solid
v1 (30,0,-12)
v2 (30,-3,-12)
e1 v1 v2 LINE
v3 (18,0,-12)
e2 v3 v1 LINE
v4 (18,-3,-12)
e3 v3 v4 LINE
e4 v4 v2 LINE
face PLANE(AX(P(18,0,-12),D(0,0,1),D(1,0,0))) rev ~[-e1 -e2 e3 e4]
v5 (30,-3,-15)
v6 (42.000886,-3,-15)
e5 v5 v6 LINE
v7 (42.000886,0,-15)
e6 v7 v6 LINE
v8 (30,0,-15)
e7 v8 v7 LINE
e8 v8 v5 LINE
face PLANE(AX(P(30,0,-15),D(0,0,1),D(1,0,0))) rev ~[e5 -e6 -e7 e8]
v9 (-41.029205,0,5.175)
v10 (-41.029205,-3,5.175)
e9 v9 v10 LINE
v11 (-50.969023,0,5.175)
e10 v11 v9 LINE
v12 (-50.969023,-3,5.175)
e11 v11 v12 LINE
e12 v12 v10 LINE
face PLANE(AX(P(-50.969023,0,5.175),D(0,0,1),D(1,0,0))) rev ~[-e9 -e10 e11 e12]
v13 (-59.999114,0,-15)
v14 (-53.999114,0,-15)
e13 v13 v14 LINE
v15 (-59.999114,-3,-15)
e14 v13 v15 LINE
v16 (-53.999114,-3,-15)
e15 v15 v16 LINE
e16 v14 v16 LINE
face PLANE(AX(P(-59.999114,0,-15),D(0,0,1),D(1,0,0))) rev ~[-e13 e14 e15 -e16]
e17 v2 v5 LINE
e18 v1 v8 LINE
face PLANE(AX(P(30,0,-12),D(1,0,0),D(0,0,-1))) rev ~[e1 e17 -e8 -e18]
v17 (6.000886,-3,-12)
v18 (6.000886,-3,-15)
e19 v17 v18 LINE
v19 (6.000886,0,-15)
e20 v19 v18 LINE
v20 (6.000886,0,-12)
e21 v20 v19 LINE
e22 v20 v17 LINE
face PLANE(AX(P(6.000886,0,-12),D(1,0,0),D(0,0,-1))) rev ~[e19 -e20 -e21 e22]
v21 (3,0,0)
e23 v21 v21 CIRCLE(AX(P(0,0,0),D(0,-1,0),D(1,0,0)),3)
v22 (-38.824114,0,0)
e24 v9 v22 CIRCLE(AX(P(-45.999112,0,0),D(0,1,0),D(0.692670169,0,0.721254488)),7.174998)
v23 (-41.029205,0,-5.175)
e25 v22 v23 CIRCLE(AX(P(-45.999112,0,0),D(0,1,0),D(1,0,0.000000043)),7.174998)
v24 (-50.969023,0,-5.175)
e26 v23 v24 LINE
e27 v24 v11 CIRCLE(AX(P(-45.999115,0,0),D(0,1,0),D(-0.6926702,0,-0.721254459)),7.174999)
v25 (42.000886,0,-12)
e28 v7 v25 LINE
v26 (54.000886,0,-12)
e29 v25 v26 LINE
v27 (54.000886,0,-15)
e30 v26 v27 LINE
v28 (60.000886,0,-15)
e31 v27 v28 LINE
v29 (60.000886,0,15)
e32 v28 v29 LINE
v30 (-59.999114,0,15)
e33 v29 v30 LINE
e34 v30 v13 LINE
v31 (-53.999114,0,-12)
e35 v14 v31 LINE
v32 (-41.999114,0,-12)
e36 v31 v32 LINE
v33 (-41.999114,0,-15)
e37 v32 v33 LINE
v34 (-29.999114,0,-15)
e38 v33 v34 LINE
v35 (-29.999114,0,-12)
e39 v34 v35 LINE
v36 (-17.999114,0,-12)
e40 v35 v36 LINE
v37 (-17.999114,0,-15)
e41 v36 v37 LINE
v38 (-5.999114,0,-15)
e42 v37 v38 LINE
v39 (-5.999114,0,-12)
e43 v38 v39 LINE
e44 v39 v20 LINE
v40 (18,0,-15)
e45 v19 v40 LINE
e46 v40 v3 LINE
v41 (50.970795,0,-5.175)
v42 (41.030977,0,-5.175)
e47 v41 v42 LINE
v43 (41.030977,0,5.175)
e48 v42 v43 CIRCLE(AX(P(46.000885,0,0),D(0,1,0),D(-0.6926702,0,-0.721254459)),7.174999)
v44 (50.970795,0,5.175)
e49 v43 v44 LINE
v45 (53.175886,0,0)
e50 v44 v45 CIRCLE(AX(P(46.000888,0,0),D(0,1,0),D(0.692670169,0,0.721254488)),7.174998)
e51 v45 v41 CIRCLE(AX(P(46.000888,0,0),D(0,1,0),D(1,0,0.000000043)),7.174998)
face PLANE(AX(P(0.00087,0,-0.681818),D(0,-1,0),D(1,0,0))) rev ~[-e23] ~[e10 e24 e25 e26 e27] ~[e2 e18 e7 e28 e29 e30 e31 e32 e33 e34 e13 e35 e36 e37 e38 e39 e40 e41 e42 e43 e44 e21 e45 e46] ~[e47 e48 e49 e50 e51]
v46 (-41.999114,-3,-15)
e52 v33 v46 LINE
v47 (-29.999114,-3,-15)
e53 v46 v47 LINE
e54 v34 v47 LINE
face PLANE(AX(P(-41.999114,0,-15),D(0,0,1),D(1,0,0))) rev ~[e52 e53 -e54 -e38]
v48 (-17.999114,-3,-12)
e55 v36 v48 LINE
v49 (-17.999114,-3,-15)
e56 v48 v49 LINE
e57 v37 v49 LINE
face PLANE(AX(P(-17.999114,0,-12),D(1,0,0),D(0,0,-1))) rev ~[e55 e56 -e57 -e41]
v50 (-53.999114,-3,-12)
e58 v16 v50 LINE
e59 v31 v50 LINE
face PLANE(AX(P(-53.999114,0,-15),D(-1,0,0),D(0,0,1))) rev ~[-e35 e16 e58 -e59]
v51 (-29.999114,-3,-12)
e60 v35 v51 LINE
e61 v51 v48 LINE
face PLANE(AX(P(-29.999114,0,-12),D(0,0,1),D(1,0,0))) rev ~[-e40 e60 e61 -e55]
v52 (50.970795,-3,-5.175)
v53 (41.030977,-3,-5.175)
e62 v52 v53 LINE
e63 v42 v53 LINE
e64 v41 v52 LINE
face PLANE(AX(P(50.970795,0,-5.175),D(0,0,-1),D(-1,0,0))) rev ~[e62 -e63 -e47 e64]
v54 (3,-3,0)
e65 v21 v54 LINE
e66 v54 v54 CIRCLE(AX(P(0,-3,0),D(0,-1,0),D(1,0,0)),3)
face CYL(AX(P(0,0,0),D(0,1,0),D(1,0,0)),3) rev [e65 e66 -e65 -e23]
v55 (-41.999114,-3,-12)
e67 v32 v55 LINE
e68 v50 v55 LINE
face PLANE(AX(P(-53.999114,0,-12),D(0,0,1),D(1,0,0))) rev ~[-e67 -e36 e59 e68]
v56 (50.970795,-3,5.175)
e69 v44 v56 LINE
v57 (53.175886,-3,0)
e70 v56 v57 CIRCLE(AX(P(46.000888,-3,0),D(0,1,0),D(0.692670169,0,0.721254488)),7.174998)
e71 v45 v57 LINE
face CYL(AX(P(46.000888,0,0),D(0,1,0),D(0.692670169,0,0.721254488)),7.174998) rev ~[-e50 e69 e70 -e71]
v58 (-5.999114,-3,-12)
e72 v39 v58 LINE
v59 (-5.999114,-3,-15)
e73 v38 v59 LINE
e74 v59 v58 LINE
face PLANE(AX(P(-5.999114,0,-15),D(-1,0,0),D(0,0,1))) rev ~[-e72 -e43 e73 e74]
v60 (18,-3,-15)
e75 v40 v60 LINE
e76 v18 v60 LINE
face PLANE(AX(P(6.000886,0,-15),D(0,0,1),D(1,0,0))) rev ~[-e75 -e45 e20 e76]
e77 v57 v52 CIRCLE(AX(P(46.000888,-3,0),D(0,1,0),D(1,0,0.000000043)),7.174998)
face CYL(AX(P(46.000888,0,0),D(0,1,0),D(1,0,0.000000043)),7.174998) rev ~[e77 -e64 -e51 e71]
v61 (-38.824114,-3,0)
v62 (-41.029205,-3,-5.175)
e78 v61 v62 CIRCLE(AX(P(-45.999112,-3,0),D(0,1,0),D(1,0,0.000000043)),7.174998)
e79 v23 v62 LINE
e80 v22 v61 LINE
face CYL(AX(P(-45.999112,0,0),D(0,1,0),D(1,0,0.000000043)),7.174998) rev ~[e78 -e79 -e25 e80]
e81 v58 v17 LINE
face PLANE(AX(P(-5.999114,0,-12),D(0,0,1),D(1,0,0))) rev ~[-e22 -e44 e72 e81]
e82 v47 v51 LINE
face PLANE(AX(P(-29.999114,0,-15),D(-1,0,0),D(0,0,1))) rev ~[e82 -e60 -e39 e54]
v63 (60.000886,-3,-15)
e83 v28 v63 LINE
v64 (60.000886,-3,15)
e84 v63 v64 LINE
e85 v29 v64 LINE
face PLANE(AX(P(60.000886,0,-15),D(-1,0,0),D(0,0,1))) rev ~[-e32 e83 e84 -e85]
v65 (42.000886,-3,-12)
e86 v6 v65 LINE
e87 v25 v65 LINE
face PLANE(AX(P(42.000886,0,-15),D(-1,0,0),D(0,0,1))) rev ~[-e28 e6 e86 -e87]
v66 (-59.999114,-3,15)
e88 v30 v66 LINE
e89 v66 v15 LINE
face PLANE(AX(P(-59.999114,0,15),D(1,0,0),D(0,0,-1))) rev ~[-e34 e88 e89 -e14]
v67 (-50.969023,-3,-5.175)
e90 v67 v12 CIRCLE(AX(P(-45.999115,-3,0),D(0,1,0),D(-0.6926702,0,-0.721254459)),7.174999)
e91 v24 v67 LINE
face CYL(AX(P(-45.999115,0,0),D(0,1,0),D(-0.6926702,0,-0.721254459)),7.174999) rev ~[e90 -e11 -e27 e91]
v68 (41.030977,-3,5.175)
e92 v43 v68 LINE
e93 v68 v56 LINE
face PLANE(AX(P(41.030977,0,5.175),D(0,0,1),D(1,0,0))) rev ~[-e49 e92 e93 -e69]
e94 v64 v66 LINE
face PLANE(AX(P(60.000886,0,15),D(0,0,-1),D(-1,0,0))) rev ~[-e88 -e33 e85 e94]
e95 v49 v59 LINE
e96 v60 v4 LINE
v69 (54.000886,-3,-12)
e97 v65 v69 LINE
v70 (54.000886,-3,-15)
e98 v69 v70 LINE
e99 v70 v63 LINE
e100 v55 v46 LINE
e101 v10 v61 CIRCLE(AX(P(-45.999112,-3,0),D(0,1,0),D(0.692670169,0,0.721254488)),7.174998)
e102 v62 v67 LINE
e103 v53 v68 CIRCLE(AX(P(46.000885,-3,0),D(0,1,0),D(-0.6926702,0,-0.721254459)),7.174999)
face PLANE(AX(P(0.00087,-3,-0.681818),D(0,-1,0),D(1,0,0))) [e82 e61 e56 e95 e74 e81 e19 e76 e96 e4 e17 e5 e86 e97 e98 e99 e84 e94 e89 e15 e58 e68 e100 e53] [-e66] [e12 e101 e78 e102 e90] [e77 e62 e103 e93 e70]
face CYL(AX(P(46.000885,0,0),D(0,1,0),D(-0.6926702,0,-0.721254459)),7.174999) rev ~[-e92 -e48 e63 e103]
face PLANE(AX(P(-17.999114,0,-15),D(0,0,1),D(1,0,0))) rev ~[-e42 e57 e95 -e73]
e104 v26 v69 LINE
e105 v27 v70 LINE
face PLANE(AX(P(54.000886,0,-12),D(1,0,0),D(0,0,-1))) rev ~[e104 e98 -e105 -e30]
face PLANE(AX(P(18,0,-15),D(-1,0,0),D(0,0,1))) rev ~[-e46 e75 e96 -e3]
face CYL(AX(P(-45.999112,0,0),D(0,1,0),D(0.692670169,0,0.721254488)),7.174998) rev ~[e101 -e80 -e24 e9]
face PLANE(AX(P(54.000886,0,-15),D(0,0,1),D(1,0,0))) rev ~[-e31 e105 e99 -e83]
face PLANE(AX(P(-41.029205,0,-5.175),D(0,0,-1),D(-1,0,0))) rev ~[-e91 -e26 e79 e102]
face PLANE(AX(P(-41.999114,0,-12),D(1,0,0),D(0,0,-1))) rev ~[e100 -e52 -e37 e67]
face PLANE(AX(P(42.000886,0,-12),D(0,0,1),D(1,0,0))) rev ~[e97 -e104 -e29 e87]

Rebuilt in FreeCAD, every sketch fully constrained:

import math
import FreeCAD as App
import Part
import Sketcher

V = App.Vector

doc = App.newDocument("Part")
body = doc.addObject("PartDesign::Body", "Body")

# Sketch on XZ plane
sketch1 = body.newObject("Sketcher::SketchObject", "Sketch")
sketch1.AttachmentSupport = (doc.getObject("XZ_Plane"), [""])
sketch1.MapMode = "FlatFace"
sketch1.addGeometry(Part.LineSegment(V(-6, -12, 0), V(6, -12, 0)), False)
sketch1.addGeometry(Part.LineSegment(V(6, -12, 0), V(6, -15, 0)), False)
sketch1.addGeometry(Part.LineSegment(V(6, -15, 0), V(18, -15, 0)), False)
sketch1.addGeometry(Part.LineSegment(V(18, -15, 0), V(18, -12, 0)), False)
sketch1.addGeometry(Part.LineSegment(V(18, -12, 0), V(30, -12, 0)), False)
sketch1.addGeometry(Part.LineSegment(V(30, -12, 0), V(30, -15, 0)), False)
sketch1.addGeometry(Part.LineSegment(V(30, -15, 0), V(42, -15, 0)), False)
sketch1.addGeometry(Part.LineSegment(V(42, -15, 0), V(42, -12, 0)), False)
sketch1.addGeometry(Part.LineSegment(V(42, -12, 0), V(54, -12, 0)), False)
sketch1.addGeometry(Part.LineSegment(V(54, -12, 0), V(54, -15, 0)), False)
sketch1.addGeometry(Part.LineSegment(V(54, -15, 0), V(60, -15, 0)), False)
sketch1.addGeometry(Part.LineSegment(V(60, -15, 0), V(60, 15, 0)), False)
sketch1.addGeometry(Part.LineSegment(V(60, 15, 0), V(-60, 15, 0)), False)
sketch1.addGeometry(Part.LineSegment(V(-60, 15, 0), V(-60, -15, 0)), False)
sketch1.addGeometry(Part.LineSegment(V(-60, -15, 0), V(-54, -15, 0)), False)
sketch1.addGeometry(Part.LineSegment(V(-54, -15, 0), V(-54, -12, 0)), False)
sketch1.addGeometry(Part.LineSegment(V(-54, -12, 0), V(-42, -12, 0)), False)
sketch1.addGeometry(Part.LineSegment(V(-42, -12, 0), V(-42, -15, 0)), False)
sketch1.addGeometry(Part.LineSegment(V(-42, -15, 0), V(-30, -15, 0)), False)
sketch1.addGeometry(Part.LineSegment(V(-30, -15, 0), V(-30, -12, 0)), False)
sketch1.addGeometry(Part.LineSegment(V(-30, -12, 0), V(-18, -12, 0)), False)
sketch1.addGeometry(Part.LineSegment(V(-18, -12, 0), V(-18, -15, 0)), False)
sketch1.addGeometry(Part.LineSegment(V(-18, -15, 0), V(-6, -15, 0)), False)
sketch1.addGeometry(Part.LineSegment(V(-6, -15, 0), V(-6, -12, 0)), False)
sketch1.addGeometry(Part.ArcOfCircle(Part.Circle(V(-46, 0, 0), V(0, 0, 1), 7.2), math.radians(0), math.radians(46)), False)
sketch1.addGeometry(Part.ArcOfCircle(Part.Circle(V(-46, 0, 0), V(0, 0, 1), 7.2), math.radians(-46), math.radians(0)), False)
sketch1.addGeometry(Part.LineSegment(V(-41, -5.2, 0), V(-51, -5.2, 0)), False)
sketch1.addGeometry(Part.ArcOfCircle(Part.Circle(V(-46, 0, 0), V(0, 0, 1), 7.2), math.radians(134), math.radians(226)), False)
sketch1.addGeometry(Part.LineSegment(V(-51, 5.2, 0), V(-41, 5.2, 0)), False)
sketch1.addGeometry(Part.Circle(V(0, 0, 0), V(0, 0, 1), 3), False)
sketch1.addGeometry(Part.ArcOfCircle(Part.Circle(V(46, 0, 0), V(0, 0, 1), 7.2), math.radians(134), math.radians(226)), False)
sketch1.addGeometry(Part.LineSegment(V(41, 5.2, 0), V(51, 5.2, 0)), False)
sketch1.addGeometry(Part.ArcOfCircle(Part.Circle(V(46, 0, 0), V(0, 0, 1), 7.2), math.radians(0), math.radians(46)), False)
sketch1.addGeometry(Part.ArcOfCircle(Part.Circle(V(46, 0, 0), V(0, 0, 1), 7.2), math.radians(-46), math.radians(0)), False)
sketch1.addGeometry(Part.LineSegment(V(51, -5.2, 0), V(41, -5.2, 0)), False)
sketch1.addConstraint(Sketcher.Constraint("Coincident", 0, 2, 1, 1))
sketch1.addConstraint(Sketcher.Constraint("Coincident", 1, 2, 2, 1))
sketch1.addConstraint(Sketcher.Constraint("Coincident", 2, 2, 3, 1))
sketch1.addConstraint(Sketcher.Constraint("Coincident", 3, 2, 4, 1))
sketch1.addConstraint(Sketcher.Constraint("Coincident", 4, 2, 5, 1))
sketch1.addConstraint(Sketcher.Constraint("Coincident", 5, 2, 6, 1))
sketch1.addConstraint(Sketcher.Constraint("Coincident", 6, 2, 7, 1))
sketch1.addConstraint(Sketcher.Constraint("Coincident", 7, 2, 8, 1))
sketch1.addConstraint(Sketcher.Constraint("Coincident", 8, 2, 9, 1))
sketch1.addConstraint(Sketcher.Constraint("Coincident", 9, 2, 10, 1))
sketch1.addConstraint(Sketcher.Constraint("Coincident", 10, 2, 11, 1))
sketch1.addConstraint(Sketcher.Constraint("Coincident", 11, 2, 12, 1))
sketch1.addConstraint(Sketcher.Constraint("Coincident", 12, 2, 13, 1))
sketch1.addConstraint(Sketcher.Constraint("Coincident", 13, 2, 14, 1))
sketch1.addConstraint(Sketcher.Constraint("Coincident", 14, 2, 15, 1))
sketch1.addConstraint(Sketcher.Constraint("Coincident", 15, 2, 16, 1))
sketch1.addConstraint(Sketcher.Constraint("Coincident", 16, 2, 17, 1))
sketch1.addConstraint(Sketcher.Constraint("Coincident", 17, 2, 18, 1))
sketch1.addConstraint(Sketcher.Constraint("Coincident", 18, 2, 19, 1))
sketch1.addConstraint(Sketcher.Constraint("Coincident", 19, 2, 20, 1))
sketch1.addConstraint(Sketcher.Constraint("Coincident", 20, 2, 21, 1))
sketch1.addConstraint(Sketcher.Constraint("Coincident", 21, 2, 22, 1))
sketch1.addConstraint(Sketcher.Constraint("Coincident", 22, 2, 23, 1))
sketch1.addConstraint(Sketcher.Constraint("Coincident", 23, 2, 0, 1))
sketch1.addConstraint(Sketcher.Constraint("Tangent", 24, 1, 25, 2))
sketch1.addConstraint(Sketcher.Constraint("Coincident", 25, 1, 26, 1))
sketch1.addConstraint(Sketcher.Constraint("Coincident", 26, 2, 27, 2))
sketch1.addConstraint(Sketcher.Constraint("Coincident", 27, 1, 28, 1))
sketch1.addConstraint(Sketcher.Constraint("Coincident", 28, 2, 24, 2))
sketch1.addConstraint(Sketcher.Constraint("Coincident", 30, 1, 31, 1))
sketch1.addConstraint(Sketcher.Constraint("Coincident", 31, 2, 32, 2))
sketch1.addConstraint(Sketcher.Constraint("Tangent", 32, 1, 33, 2))
sketch1.addConstraint(Sketcher.Constraint("Coincident", 33, 1, 34, 1))
sketch1.addConstraint(Sketcher.Constraint("Coincident", 34, 2, 30, 2))
sketch1.addConstraint(Sketcher.Constraint("Horizontal", 0))
sketch1.addConstraint(Sketcher.Constraint("Vertical", 1))
sketch1.addConstraint(Sketcher.Constraint("Horizontal", 2))
sketch1.addConstraint(Sketcher.Constraint("Vertical", 3))
sketch1.addConstraint(Sketcher.Constraint("Horizontal", 4))
sketch1.addConstraint(Sketcher.Constraint("Vertical", 5))
sketch1.addConstraint(Sketcher.Constraint("Horizontal", 6))
sketch1.addConstraint(Sketcher.Constraint("Vertical", 7))
sketch1.addConstraint(Sketcher.Constraint("Horizontal", 8))
sketch1.addConstraint(Sketcher.Constraint("Vertical", 9))
sketch1.addConstraint(Sketcher.Constraint("Horizontal", 10))
sketch1.addConstraint(Sketcher.Constraint("Vertical", 11))
sketch1.addConstraint(Sketcher.Constraint("Horizontal", 12))
sketch1.addConstraint(Sketcher.Constraint("Vertical", 13))
sketch1.addConstraint(Sketcher.Constraint("Horizontal", 14))
sketch1.addConstraint(Sketcher.Constraint("Vertical", 15))
sketch1.addConstraint(Sketcher.Constraint("Horizontal", 16))
sketch1.addConstraint(Sketcher.Constraint("Vertical", 17))
sketch1.addConstraint(Sketcher.Constraint("Horizontal", 18))
sketch1.addConstraint(Sketcher.Constraint("Vertical", 19))
sketch1.addConstraint(Sketcher.Constraint("Horizontal", 20))
sketch1.addConstraint(Sketcher.Constraint("Vertical", 21))
sketch1.addConstraint(Sketcher.Constraint("Horizontal", 22))
sketch1.addConstraint(Sketcher.Constraint("Vertical", 23))
sketch1.addConstraint(Sketcher.Constraint("Horizontal", 26))
sketch1.addConstraint(Sketcher.Constraint("Horizontal", 28))
sketch1.addConstraint(Sketcher.Constraint("Horizontal", 31))
sketch1.addConstraint(Sketcher.Constraint("Horizontal", 34))
sketch1.addConstraint(Sketcher.Constraint("Coincident", 29, 3, -1, 1))
sketch1.addConstraint(Sketcher.Constraint("Coincident", 27, 3, 24, 3))
sketch1.addConstraint(Sketcher.Constraint("Coincident", 32, 3, 30, 3))
sketch1.addConstraint(Sketcher.Constraint("Equal", 24, 25))
sketch1.addConstraint(Sketcher.Constraint("Equal", 25, 27))
sketch1.addConstraint(Sketcher.Constraint("Equal", 27, 30))
sketch1.addConstraint(Sketcher.Constraint("Equal", 30, 32))
sketch1.addConstraint(Sketcher.Constraint("Equal", 32, 33))
sketch1.addConstraint(Sketcher.Constraint("Symmetric", 26, 2, 27, 1, -1))
sketch1.addConstraint(Sketcher.Constraint("Symmetric", 31, 2, 33, 1, -1))
sketch1.addConstraint(Sketcher.Constraint("PointOnObject", 24, 1, -1))
sketch1.addConstraint(Sketcher.Constraint("PointOnObject", 32, 1, -1))
sketch1.addConstraint(Sketcher.Constraint("Horizontal", 0, 2, 3, 2))
sketch1.addConstraint(Sketcher.Constraint("Horizontal", 2, 2, 5, 2))
sketch1.addConstraint(Sketcher.Constraint("Horizontal", 4, 2, 7, 2))
sketch1.addConstraint(Sketcher.Constraint("Horizontal", 6, 2, 9, 2))
sketch1.addConstraint(Sketcher.Constraint("Horizontal", 10, 2, 13, 2))
sketch1.addConstraint(Sketcher.Constraint("Horizontal", 8, 2, 15, 2))
sketch1.addConstraint(Sketcher.Constraint("Horizontal", 14, 2, 17, 2))
sketch1.addConstraint(Sketcher.Constraint("Horizontal", 16, 2, 19, 2))
sketch1.addConstraint(Sketcher.Constraint("Horizontal", 18, 2, 21, 2))
sketch1.addConstraint(Sketcher.Constraint("Horizontal", 28, 2, 30, 1))
sketch1.addConstraint(Sketcher.Constraint("Equal", 0, 4))
sketch1.addConstraint(Sketcher.Constraint("Equal", 4, 8))
sketch1.addConstraint(Sketcher.Constraint("Equal", 10, 14))
sketch1.addConstraint(Sketcher.Constraint("Equal", 8, 16))
sketch1.addConstraint(Sketcher.Constraint("Equal", 16, 18))
sketch1.addConstraint(Sketcher.Constraint("Equal", 18, 20))
sketch1.addConstraint(Sketcher.Constraint("Equal", 20, 22))
sketch1.addConstraint(Sketcher.Constraint("Diameter", 29, 6.0))
sketch1.addConstraint(Sketcher.Constraint("DistanceX", 0, 1, 0, 2, 12.0))
sketch1.addConstraint(Sketcher.Constraint("DistanceX", 10, 1, 10, 2, 6.0))
sketch1.addConstraint(Sketcher.Constraint("DistanceX", 12, 2, 12, 1, 120.0))
sketch1.addConstraint(Sketcher.Constraint("DistanceY", 1, 2, 1, 1, 3.0))
sketch1.addConstraint(Sketcher.Constraint("DistanceY", 11, 1, 11, 2, 30.0))
sketch1.addConstraint(Sketcher.Constraint("DistanceY", 0, 2, -1, 1, 12.0))
sketch1.addConstraint(Sketcher.Constraint("DistanceX", -1, 1, 2, 2, 18.0))
sketch1.addConstraint(Sketcher.Constraint("Radius", 24, 7.174998))
sketch1.addConstraint(Sketcher.Constraint("DistanceX", 27, 3, 30, 3, 92.0))
sketch1.addConstraint(Sketcher.Constraint("DistanceX", 0, 2, 30, 3, 39.999999))
sketch1.addConstraint(Sketcher.Constraint("DistanceY", 26, 2, 27, 1, 10.35))
sketch1.addConstraint(Sketcher.Constraint("DistanceX", 2, 1, 2, 2, 11.999114))
pad1 = body.newObject("PartDesign::Pad", "Pad")
pad1.Profile = sketch1
pad1.Length = 3

doc.recompute()
